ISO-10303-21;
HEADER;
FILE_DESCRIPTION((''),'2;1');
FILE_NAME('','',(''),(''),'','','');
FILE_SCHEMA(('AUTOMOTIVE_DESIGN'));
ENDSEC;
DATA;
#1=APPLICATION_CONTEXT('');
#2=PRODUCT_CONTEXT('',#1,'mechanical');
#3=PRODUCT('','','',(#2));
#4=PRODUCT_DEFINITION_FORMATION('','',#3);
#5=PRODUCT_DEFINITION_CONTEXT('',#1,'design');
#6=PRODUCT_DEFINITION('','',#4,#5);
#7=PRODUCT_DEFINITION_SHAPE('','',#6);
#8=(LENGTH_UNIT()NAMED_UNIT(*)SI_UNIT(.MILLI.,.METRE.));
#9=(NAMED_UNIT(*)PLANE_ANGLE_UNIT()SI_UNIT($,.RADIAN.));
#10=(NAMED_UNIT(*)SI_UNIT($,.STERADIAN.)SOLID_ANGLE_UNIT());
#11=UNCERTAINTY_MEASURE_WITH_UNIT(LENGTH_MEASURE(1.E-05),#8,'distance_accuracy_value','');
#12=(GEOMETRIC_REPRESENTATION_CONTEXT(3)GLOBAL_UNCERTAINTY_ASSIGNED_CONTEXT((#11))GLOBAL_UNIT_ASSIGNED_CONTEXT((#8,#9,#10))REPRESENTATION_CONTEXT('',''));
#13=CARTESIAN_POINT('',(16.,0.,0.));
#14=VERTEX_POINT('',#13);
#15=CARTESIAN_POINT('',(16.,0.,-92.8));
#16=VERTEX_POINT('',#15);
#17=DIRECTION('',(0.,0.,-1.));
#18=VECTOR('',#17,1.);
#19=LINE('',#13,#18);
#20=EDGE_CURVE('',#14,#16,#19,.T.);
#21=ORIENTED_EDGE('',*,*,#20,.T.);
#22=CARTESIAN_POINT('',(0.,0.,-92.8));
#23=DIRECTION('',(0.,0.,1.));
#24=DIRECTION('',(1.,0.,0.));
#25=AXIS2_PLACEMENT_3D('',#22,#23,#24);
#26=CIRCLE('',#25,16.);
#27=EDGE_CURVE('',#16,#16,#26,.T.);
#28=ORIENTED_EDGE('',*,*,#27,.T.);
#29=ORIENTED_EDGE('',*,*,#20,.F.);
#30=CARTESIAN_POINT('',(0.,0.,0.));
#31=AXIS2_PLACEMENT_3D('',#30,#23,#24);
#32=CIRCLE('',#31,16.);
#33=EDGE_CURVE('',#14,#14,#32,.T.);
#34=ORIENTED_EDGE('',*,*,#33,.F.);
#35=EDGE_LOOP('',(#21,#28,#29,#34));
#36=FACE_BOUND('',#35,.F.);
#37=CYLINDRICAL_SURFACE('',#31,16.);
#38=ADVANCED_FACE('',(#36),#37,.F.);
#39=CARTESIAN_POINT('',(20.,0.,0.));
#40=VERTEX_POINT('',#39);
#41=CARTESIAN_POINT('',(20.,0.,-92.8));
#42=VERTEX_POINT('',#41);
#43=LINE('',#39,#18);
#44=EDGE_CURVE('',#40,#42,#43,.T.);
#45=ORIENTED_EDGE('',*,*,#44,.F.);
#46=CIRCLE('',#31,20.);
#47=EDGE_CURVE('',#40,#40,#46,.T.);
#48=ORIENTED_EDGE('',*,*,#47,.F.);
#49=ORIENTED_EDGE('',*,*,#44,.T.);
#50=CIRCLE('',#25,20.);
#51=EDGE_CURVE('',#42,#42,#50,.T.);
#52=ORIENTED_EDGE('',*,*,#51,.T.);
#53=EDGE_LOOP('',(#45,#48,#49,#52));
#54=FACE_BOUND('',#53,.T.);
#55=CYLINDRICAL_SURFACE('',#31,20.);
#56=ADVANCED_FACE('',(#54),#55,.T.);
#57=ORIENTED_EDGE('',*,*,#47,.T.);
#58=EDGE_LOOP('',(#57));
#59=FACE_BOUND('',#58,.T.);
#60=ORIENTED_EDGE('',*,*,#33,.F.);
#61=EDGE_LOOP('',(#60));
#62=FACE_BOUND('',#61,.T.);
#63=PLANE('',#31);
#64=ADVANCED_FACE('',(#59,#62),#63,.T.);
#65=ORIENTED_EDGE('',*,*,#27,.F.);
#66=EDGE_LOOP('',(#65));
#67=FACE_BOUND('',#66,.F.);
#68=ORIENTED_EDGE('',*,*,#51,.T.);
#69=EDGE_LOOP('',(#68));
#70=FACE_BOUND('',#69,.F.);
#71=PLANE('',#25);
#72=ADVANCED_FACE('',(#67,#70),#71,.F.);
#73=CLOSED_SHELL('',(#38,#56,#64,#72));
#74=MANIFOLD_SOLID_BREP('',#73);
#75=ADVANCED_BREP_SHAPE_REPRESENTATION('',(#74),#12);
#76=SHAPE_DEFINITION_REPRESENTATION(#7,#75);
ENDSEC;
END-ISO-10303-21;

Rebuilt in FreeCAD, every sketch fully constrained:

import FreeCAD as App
import Part
import Sketcher
from FreeCAD import Vector
Q = App.Units.Quantity

doc = App.newDocument("Part")
body = doc.addObject("PartDesign::Body", "Body")

# Sketch on XY plane
sketch1 = body.newObject("Sketcher::SketchObject", "Sketch")
sketch1.AttachmentSupport = (doc.getObject("XY_Plane"), [""])
sketch1.MapMode = "FlatFace"
sketch1.addGeometry([
    Part.Circle(Vector(0, 0, 0), Vector(0, 0, 1), 20),
    Part.Circle(Vector(0, 0, 0), Vector(0, 0, 1), 16),
], False)
sketch1.addConstraint([
    Sketcher.Constraint("Coincident", 0, 3, -1, 1),
    Sketcher.Constraint("Coincident", 1, 3, -1, 1),
    Sketcher.Constraint("Diameter", 0, Q("40 mm")),
    Sketcher.Constraint("Diameter", 1, Q("32 mm")),
])
pad1 = body.newObject("PartDesign::Pad", "Pad")
pad1.Profile = sketch1
pad1.Length = 92.8
pad1.Reversed = True

doc.recompute()
